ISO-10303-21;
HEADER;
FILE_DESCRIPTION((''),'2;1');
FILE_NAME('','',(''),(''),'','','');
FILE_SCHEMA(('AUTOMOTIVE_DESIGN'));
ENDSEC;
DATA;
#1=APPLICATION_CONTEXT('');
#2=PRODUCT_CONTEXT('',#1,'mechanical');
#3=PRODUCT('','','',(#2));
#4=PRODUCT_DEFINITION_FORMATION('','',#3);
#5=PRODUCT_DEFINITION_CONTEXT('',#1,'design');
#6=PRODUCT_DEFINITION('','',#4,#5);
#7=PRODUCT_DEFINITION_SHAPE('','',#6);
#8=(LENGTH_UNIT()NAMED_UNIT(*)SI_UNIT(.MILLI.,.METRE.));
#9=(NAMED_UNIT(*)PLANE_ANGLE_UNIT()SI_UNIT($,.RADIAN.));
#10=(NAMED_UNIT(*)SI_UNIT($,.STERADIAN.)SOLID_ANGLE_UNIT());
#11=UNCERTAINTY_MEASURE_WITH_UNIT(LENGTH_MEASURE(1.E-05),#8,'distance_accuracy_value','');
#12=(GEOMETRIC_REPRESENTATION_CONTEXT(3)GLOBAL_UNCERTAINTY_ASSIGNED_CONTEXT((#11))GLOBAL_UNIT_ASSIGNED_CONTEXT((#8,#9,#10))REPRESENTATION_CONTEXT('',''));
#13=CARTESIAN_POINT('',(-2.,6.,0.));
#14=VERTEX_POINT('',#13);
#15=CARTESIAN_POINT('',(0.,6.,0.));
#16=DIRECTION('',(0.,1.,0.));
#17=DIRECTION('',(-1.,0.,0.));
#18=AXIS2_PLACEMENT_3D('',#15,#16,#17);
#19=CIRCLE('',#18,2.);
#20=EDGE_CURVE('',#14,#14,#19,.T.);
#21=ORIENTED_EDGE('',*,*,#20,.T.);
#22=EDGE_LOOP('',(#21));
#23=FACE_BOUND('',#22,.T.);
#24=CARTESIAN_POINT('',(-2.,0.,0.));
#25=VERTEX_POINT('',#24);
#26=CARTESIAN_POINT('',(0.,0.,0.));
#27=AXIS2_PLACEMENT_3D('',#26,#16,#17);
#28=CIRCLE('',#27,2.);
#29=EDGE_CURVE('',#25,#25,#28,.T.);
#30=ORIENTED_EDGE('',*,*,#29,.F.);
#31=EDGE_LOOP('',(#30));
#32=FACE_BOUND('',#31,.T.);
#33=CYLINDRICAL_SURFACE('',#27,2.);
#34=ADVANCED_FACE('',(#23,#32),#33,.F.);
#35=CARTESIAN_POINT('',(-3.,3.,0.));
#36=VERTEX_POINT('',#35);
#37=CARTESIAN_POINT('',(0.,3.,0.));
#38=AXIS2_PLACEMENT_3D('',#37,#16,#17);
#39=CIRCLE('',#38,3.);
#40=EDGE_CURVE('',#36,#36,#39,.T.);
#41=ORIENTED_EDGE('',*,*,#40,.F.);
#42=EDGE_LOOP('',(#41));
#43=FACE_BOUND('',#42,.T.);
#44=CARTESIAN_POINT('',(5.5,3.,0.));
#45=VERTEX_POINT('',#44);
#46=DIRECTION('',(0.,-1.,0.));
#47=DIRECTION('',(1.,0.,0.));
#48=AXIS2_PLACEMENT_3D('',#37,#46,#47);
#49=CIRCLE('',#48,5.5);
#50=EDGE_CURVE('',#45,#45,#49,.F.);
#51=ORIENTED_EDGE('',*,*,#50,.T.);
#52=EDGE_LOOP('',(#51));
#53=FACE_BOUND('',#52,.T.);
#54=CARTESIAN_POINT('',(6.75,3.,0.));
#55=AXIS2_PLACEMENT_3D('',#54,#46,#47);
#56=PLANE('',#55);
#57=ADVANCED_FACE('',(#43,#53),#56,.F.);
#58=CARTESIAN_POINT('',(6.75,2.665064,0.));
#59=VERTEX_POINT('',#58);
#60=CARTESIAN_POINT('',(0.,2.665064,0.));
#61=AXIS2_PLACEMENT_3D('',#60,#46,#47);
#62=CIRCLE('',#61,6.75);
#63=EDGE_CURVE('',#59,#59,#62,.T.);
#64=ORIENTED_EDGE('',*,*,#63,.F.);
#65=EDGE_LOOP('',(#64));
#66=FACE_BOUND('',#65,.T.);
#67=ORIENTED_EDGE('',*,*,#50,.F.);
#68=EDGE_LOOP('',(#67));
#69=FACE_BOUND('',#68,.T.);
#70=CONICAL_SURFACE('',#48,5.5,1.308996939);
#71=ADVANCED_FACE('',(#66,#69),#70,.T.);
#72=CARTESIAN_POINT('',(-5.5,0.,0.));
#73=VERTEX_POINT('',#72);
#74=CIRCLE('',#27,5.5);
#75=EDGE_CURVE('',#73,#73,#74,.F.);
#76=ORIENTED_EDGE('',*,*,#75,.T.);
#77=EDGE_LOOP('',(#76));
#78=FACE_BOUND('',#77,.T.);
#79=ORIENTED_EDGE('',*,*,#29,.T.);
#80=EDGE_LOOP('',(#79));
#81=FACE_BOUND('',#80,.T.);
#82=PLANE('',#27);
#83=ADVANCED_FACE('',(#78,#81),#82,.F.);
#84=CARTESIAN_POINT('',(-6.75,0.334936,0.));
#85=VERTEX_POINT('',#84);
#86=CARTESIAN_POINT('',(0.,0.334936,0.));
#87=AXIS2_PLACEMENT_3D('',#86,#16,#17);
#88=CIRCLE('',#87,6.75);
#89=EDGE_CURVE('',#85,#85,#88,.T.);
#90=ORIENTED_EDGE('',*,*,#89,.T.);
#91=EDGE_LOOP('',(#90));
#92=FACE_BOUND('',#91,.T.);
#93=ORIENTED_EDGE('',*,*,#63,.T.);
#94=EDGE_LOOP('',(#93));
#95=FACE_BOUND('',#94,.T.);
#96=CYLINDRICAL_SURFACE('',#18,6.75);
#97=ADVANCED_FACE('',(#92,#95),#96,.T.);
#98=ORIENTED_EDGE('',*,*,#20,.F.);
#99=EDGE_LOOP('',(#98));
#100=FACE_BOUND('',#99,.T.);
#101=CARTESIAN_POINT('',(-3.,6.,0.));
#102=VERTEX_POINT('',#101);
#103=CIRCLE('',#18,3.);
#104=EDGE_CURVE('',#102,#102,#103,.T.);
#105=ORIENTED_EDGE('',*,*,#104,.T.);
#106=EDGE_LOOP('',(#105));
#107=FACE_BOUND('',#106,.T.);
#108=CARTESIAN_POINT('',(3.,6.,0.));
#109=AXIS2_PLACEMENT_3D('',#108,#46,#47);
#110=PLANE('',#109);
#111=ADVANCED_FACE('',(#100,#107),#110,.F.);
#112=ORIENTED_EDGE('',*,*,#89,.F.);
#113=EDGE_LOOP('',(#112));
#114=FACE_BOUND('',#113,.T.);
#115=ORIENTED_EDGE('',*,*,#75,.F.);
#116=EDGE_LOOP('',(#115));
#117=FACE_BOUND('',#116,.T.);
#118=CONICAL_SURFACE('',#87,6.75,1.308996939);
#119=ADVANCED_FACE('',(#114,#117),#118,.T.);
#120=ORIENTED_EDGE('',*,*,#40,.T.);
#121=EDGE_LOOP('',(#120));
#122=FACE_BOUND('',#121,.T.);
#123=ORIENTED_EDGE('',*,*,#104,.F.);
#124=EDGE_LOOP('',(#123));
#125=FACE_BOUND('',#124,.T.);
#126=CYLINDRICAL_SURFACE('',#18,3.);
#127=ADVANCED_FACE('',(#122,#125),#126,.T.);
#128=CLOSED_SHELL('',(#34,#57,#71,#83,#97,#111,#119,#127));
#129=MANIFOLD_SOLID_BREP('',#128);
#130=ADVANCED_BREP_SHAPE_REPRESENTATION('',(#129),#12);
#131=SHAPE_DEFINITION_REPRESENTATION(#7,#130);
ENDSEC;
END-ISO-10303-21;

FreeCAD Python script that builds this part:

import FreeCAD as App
import Part
import Sketcher
from FreeCAD import Vector


def edges_at(feature, points):
    """Names of the edges that pass closest to the given points."""
    edges = feature.Shape.Edges
    near = lambda p: min(range(len(edges)), key=lambda i: edges[i].distToShape(Part.Vertex(*p))[0])
    return sorted({f"Edge{near(p) + 1}" for p in points})

doc = App.newDocument("Part")
body = doc.addObject("PartDesign::Body", "Body")

# Sketch on XY plane
sketch1 = doc.addObject("Sketcher::SketchObject", "Sketch")
body.addObject(sketch1)
sketch1.AttachmentSupport = (doc.XY_Plane, [""])
sketch1.MapMode = "FlatFace"
sketch1.addGeometry([
    Part.LineSegment(Vector(0, 0, 0), Vector(6.75, 0, 0)),  # 0
    Part.LineSegment(Vector(6.75, 0, 0), Vector(6.75, 3, 0)),  # 1
    Part.LineSegment(Vector(6.75, 3, 0), Vector(3, 3, 0)),  # 2
    Part.LineSegment(Vector(3, 3, 0), Vector(3, 6, 0)),  # 3
    Part.LineSegment(Vector(3, 6, 0), Vector(0, 6, 0)),  # 4
    Part.LineSegment(Vector(0, 6, 0), Vector(0, 0, 0)),  # 5
], False)
sketch1.addConstraint([
    Sketcher.Constraint("Coincident", 0, 2, 1, 1),
    Sketcher.Constraint("Coincident", 1, 2, 2, 1),
    Sketcher.Constraint("Coincident", 2, 2, 3, 1),
    Sketcher.Constraint("Coincident", 3, 2, 4, 1),
    Sketcher.Constraint("Coincident", 4, 2, 5, 1),
    Sketcher.Constraint("Coincident", 5, 2, 0, 1),
    Sketcher.Constraint("Horizontal", 0),
    Sketcher.Constraint("Vertical", 1),
    Sketcher.Constraint("Horizontal", 2),
    Sketcher.Constraint("Vertical", 3),
    Sketcher.Constraint("Horizontal", 4),
    Sketcher.Constraint("Vertical", 5),
    Sketcher.Constraint("Coincident", 5, 2, -1, 1),
    Sketcher.Constraint("Equal", 4, 1),
    Sketcher.Constraint("Equal", 1, 3),
    Sketcher.Constraint("DistanceX", 4, 2, 4, 1, 3.0),
    Sketcher.Constraint("DistanceX", 0, 1, 0, 2, 6.75),
])
revolution = doc.addObject("PartDesign::Revolution", "Revolution")
body.addObject(revolution)
revolution.Profile = sketch1
revolution.ReferenceAxis = (sketch1, ["V_Axis"])
revolution.Angle = 360
doc.recompute()

chamfer = doc.addObject("PartDesign::Chamfer", "Chamfer")
body.addObject(chamfer)
chamfer.Base = (revolution, edges_at(revolution, [(-6.75, 3, 0)]))
chamfer.ChamferType = "Two distances"
chamfer.Size = 1.25
chamfer.Size2 = 0.334936
chamfer.FlipDirection = True
doc.recompute()

chamfer2 = doc.addObject("PartDesign::Chamfer", "Chamfer001")
body.addObject(chamfer2)
chamfer2.Base = (chamfer, edges_at(chamfer, [(-6.75, 0, 0)]))
chamfer2.ChamferType = "Two distances"
chamfer2.Size = 1.25
chamfer2.Size2 = 0.334936
chamfer2.FlipDirection = True

# Sketch on XZ plane
sketch2 = doc.addObject("Sketcher::SketchObject", "Sketch001")
body.addObject(sketch2)
sketch2.AttachmentSupport = (doc.XZ_Plane, [""])
sketch2.MapMode = "FlatFace"
sketch2.AttachmentOffset = App.Placement(Vector(0, 0, -6), App.Rotation())
sketch2.addGeometry(Part.Circle(Vector(0, 0, 0), Vector(0, 0, 1), 2), False)
sketch2.addConstraint([
    Sketcher.Constraint("Coincident", 0, 3, -1, 1),
    Sketcher.Constraint("Diameter", 0, 4.0),
])
pocket1 = doc.addObject("PartDesign::Pocket", "Pocket")
body.addObject(pocket1)
pocket1.Profile = sketch2
pocket1.Type = "ThroughAll"
pocket1.Midplane = True

doc.recompute()
